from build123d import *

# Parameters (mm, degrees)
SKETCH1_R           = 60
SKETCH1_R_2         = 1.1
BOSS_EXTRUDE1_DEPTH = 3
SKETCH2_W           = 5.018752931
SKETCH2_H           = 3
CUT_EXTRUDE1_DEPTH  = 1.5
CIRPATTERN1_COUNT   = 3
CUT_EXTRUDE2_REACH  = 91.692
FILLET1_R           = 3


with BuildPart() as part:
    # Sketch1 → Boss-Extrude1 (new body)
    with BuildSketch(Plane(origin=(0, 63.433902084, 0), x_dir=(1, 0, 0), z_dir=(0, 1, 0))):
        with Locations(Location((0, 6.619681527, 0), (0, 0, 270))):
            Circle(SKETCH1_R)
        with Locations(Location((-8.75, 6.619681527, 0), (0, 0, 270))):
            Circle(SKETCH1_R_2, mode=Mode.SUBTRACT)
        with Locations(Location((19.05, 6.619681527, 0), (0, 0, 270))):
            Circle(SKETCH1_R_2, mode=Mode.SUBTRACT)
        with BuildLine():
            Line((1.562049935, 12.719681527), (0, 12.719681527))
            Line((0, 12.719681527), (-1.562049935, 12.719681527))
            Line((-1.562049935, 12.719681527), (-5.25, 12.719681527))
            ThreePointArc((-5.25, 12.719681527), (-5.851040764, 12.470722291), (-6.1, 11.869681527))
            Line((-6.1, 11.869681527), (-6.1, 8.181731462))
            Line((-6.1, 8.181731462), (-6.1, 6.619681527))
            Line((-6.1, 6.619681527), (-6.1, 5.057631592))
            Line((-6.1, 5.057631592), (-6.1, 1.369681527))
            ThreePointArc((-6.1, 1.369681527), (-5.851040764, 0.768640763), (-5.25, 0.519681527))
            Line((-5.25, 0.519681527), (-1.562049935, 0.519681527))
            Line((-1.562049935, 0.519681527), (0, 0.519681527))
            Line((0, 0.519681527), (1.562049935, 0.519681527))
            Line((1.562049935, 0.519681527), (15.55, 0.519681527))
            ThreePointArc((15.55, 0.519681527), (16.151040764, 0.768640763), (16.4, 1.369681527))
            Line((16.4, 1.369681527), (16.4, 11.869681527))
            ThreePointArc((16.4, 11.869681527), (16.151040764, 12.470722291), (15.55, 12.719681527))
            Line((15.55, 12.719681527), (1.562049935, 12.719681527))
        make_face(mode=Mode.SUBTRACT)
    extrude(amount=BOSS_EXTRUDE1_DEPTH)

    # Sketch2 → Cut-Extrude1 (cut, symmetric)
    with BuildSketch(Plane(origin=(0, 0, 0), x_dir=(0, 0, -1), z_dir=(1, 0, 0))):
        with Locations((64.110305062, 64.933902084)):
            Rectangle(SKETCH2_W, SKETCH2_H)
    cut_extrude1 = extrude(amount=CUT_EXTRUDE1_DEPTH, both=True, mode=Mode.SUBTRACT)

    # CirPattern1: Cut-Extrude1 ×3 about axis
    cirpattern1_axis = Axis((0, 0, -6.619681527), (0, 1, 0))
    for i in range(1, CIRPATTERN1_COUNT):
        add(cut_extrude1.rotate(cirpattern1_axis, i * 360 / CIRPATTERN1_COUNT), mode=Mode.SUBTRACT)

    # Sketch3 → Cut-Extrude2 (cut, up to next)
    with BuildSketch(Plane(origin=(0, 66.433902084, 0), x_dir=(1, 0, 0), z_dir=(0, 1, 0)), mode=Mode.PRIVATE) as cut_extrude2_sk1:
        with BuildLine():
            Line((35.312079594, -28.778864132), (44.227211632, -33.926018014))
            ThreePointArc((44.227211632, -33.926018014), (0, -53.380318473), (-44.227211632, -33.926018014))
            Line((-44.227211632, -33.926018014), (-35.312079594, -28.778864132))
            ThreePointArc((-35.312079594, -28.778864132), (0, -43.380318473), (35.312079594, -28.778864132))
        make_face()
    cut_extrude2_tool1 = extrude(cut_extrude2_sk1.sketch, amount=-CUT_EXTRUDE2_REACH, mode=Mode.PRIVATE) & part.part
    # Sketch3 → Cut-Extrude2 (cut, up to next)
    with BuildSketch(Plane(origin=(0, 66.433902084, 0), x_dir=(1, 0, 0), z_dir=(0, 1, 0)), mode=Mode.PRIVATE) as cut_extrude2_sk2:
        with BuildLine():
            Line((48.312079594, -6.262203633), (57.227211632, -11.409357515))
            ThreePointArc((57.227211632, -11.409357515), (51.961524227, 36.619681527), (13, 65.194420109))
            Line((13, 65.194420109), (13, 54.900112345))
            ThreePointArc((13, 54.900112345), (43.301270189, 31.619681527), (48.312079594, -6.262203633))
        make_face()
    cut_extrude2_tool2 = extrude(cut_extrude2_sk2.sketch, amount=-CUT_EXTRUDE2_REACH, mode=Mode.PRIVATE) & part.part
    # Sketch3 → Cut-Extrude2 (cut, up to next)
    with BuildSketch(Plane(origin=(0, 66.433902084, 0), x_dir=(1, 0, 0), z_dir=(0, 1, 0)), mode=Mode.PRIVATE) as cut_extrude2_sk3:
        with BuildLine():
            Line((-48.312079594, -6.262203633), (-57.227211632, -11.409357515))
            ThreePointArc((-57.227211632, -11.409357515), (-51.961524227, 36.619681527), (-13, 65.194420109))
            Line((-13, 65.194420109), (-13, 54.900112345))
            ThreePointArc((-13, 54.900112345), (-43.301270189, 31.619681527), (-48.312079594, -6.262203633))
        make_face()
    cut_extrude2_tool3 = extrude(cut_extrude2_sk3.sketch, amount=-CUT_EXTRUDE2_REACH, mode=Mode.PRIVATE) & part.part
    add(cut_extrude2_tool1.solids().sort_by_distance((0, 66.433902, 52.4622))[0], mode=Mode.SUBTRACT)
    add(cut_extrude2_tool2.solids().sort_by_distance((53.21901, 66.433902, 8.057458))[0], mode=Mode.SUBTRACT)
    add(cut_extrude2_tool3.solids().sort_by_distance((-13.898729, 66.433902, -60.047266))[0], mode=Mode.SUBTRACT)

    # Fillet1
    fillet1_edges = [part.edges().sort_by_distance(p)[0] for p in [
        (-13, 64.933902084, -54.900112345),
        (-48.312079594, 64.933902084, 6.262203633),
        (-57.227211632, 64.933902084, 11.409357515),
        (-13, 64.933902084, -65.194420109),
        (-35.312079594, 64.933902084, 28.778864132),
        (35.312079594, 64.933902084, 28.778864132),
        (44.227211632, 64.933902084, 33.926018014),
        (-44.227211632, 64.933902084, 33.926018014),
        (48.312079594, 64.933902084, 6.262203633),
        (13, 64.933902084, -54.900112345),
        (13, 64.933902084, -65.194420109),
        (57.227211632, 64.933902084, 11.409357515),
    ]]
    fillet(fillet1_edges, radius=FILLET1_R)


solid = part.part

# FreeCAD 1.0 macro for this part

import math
import FreeCAD as App
import Part
import Sketcher
from FreeCAD import Vector
Q = App.Units.Quantity


def edges_at(feature, points):
    """Names of the edges that pass closest to the given points."""
    edges = feature.Shape.Edges
    near = lambda p: min(range(len(edges)), key=lambda i: edges[i].distToShape(Part.Vertex(*p))[0])
    return sorted({f"Edge{near(p) + 1}" for p in points})


def add_polygon(sketch, points):
    """Adds a closed chain of lines whose ends are joined by coincident constraints."""
    first, n = sketch.GeometryCount, len(points)
    for a, b in zip(points, points[1:] + points[:1]):
        sketch.addGeometry(Part.LineSegment(App.Vector(*a, 0), App.Vector(*b, 0)), False)
    for i in range(n):
        sketch.addConstraint(Sketcher.Constraint("Coincident", first + i, 2, first + (i + 1) % n, 1))

doc = App.newDocument("Part")
body = doc.addObject("PartDesign::Body", "Body")

sketch1 = body.newObject("Sketcher::SketchObject", "Sketch")
sketch1.AttachmentSupport = (doc.getObject("XZ_Plane"), [""])
sketch1.MapMode = "FlatFace"
sketch1.AttachmentOffset = App.Placement(Vector(0, 0, -63.433902), App.Rotation())
sketch1.addGeometry([
    Part.Circle(Vector(0, -6.6, 0), Vector(0, 0, 1), 60),
    Part.ArcOfCircle(Part.Circle(Vector(-5.2, -11.9, 0), Vector(0, 0, 1), 0.8), math.radians(180), math.radians(270)),
    Part.LineSegment(Vector(-5.2, -12.7, 0), Vector(15.6, -12.7, 0)),
    Part.ArcOfCircle(Part.Circle(Vector(15.6, -11.9, 0), Vector(0, 0, 1), 0.8), math.radians(-90), math.radians(0)),
    Part.LineSegment(Vector(16.4, -11.9, 0), Vector(16.4, -1.4, 0)),
    Part.ArcOfCircle(Part.Circle(Vector(15.6, -1.4, 0), Vector(0, 0, 1), 0.8), math.radians(0), math.radians(90)),
    Part.LineSegment(Vector(15.6, -0.5, 0), Vector(-5.2, -0.5, 0)),
    Part.ArcOfCircle(Part.Circle(Vector(-5.2, -1.4, 0), Vector(0, 0, 1), 0.8), math.radians(90), math.radians(180)),
    Part.LineSegment(Vector(-6.1, -1.4, 0), Vector(-6.1, -11.9, 0)),
    Part.Circle(Vector(-8.8, -6.6, 0), Vector(0, 0, 1), 1.1),
    Part.Circle(Vector(19.1, -6.6, 0), Vector(0, 0, 1), 1.1),
], False)
sketch1.addConstraint([
    Sketcher.Constraint("Tangent", 1, 2, 2, 1),
    Sketcher.Constraint("Tangent", 2, 2, 3, 1),
    Sketcher.Constraint("Tangent", 3, 2, 4, 1),
    Sketcher.Constraint("Tangent", 4, 2, 5, 1),
    Sketcher.Constraint("Tangent", 5, 2, 6, 1),
    Sketcher.Constraint("Tangent", 6, 2, 7, 1),
    Sketcher.Constraint("Tangent", 7, 2, 8, 1),
    Sketcher.Constraint("Tangent", 8, 2, 1, 1),
    Sketcher.Constraint("Horizontal", 2),
    Sketcher.Constraint("Vertical", 4),
    Sketcher.Constraint("Horizontal", 6),
    Sketcher.Constraint("Vertical", 8),
    Sketcher.Constraint("Equal", 1, 3),
    Sketcher.Constraint("Equal", 3, 5),
    Sketcher.Constraint("Equal", 5, 7),
    Sketcher.Constraint("Equal", 9, 10),
    Sketcher.Constraint("PointOnObject", 0, 3, -2),
    Sketcher.Constraint("Horizontal", 0, 3, 9, 3),
    Sketcher.Constraint("Horizontal", 9, 3, 10, 3),
    Sketcher.Constraint("Diameter", 0, Q("120 mm")),
    Sketcher.Constraint("Diameter", 9, Q("2.2 mm")),
    Sketcher.Constraint("Radius", 1, Q("0.85 mm")),
    Sketcher.Constraint("DistanceX", 2, 1, 2, 2, Q("20.8 mm")),
    Sketcher.Constraint("DistanceY", 4, 1, 4, 2, Q("10.5 mm")),
    Sketcher.Constraint("DistanceX", -1, 1, 3, 2, Q("16.4 mm")),
    Sketcher.Constraint("DistanceX", 9, 3, 1, 3, Q("3.5 mm")),
    Sketcher.Constraint("DistanceX", 3, 3, 10, 3, Q("3.5 mm")),
    Sketcher.Constraint("DistanceY", 1, 2, 9, 3, Q("6.1 mm")),
    Sketcher.Constraint("DistanceY", 0, 3, -1, 1, Q("6.619682 mm")),
])
pad1 = body.newObject("PartDesign::Pad", "Pad")
pad1.Profile = sketch1
pad1.Length = 3
pad1.Reversed = True

sketch2 = body.newObject("Sketcher::SketchObject", "Sketch001")
sketch2.AttachmentSupport = (doc.getObject("YZ_Plane"), [""])
sketch2.MapMode = "FlatFace"
add_polygon(sketch2, [(66.4, -61.6), (63.4, -61.6), (63.4, -66.6), (66.4, -66.6)])
sketch2.addConstraint([
    Sketcher.Constraint("Horizontal", 0),
    Sketcher.Constraint("Vertical", 1),
    Sketcher.Constraint("Horizontal", 2),
    Sketcher.Constraint("Vertical", 3),
    Sketcher.Constraint("DistanceX", 0, 2, 0, 1, Q("3 mm")),
    Sketcher.Constraint("DistanceY", 1, 2, 1, 1, Q("5.018753 mm")),
    Sketcher.Constraint("DistanceY", 0, 2, -1, 1, Q("61.600929 mm")),
    Sketcher.Constraint("DistanceX", -1, 1, 0, 2, Q("63.433902 mm")),
])
pocket1 = body.newObject("PartDesign::Pocket", "Pocket")
pocket1.Profile = sketch2
pocket1.Length = 3
pocket1.Midplane = True
doc.recompute()

datumline = body.newObject("PartDesign::Line", "DatumLine")
datumline.Placement = App.Placement(Vector(0, 0, -6.619682), App.Rotation(Vector(0, 0, 1), Vector(0, 1, 0)))
polarpattern = body.newObject("PartDesign::PolarPattern", "PolarPattern")
polarpattern.Originals = [pocket1]
polarpattern.Axis = (datumline, [""])
polarpattern.Angle = 360
polarpattern.Occurrences = 3
body.Tip = polarpattern

sketch3 = body.newObject("Sketcher::SketchObject", "Sketch002")
sketch3.AttachmentSupport = (doc.getObject("XZ_Plane"), [""])
sketch3.MapMode = "FlatFace"
sketch3.AttachmentOffset = App.Placement(Vector(0, 0, -66.433902), App.Rotation())
sketch3.addGeometry([
    Part.LineSegment(Vector(44, 34, 0), Vector(35, 29, 0)),
    Part.ArcOfCircle(Part.Circle(Vector(0, -7, 0), Vector(0, 0, 1), 50), math.radians(45), math.radians(135)),
    Part.LineSegment(Vector(-35, 29, 0), Vector(-44, 34, 0)),
    Part.ArcOfCircle(Part.Circle(Vector(0, -7, 0), Vector(0, 0, 1), 60), math.radians(43), math.radians(137)),
], False)
sketch3.addConstraint([
    Sketcher.Constraint("Coincident", 0, 2, 1, 1),
    Sketcher.Constraint("Coincident", 1, 2, 2, 1),
    Sketcher.Constraint("Coincident", 2, 2, 3, 2),
    Sketcher.Constraint("Coincident", 3, 1, 0, 1),
    Sketcher.Constraint("Coincident", 3, 3, 1, 3),
    Sketcher.Constraint("Symmetric", 0, 2, 1, 2, -2),
    Sketcher.Constraint("Horizontal", 2, 2, 3, 1),
    Sketcher.Constraint("Radius", 1, Q("50 mm")),
    Sketcher.Constraint("Radius", 3, Q("60 mm")),
    Sketcher.Constraint("Angle", 0, Q("-150 deg")),
    Sketcher.Constraint("DistanceY", 3, 3, 2, 2, Q("40.5457 mm")),
    Sketcher.Constraint("DistanceY", 1, 3, -1, 1, Q("6.619682 mm")),
])
pocket2 = body.newObject("PartDesign::Pocket", "Pocket001")
pocket2.Profile = sketch3
pocket2.Type = "UpToFirst"
pocket2.Reversed = True

sketch4 = body.newObject("Sketcher::SketchObject", "Sketch003")
sketch4.AttachmentSupport = (doc.getObject("XZ_Plane"), [""])
sketch4.MapMode = "FlatFace"
sketch4.AttachmentOffset = App.Placement(Vector(0, 0, -66.433902), App.Rotation())
sketch4.addGeometry([
    Part.LineSegment(Vector(48, 6, 0), Vector(57, 11, 0)),
    Part.ArcOfCircle(Part.Circle(Vector(0, -7, 0), Vector(0, 0, 1), 60), math.radians(-77), math.radians(17)),
    Part.LineSegment(Vector(13, -65, 0), Vector(13, -55, 0)),
    Part.ArcOfCircle(Part.Circle(Vector(0, -7, 0), Vector(0, 0, 1), 50), math.radians(-75), math.radians(15)),
], False)
sketch4.addConstraint([
    Sketcher.Constraint("Coincident", 0, 2, 1, 2),
    Sketcher.Constraint("Coincident", 1, 1, 2, 1),
    Sketcher.Constraint("Coincident", 2, 2, 3, 1),
    Sketcher.Constraint("Coincident", 3, 2, 0, 1),
    Sketcher.Constraint("Vertical", 2),
    Sketcher.Constraint("Coincident", 3, 3, 1, 3),
    Sketcher.Constraint("PointOnObject", 1, 3, -2),
    Sketcher.Constraint("Radius", 1, Q("60 mm")),
    Sketcher.Constraint("Radius", 3, Q("50 mm")),
    Sketcher.Constraint("Angle", 0, Q("30 deg")),
    Sketcher.Constraint("DistanceX", -1, 1, 1, 1, Q("13 mm")),
    Sketcher.Constraint("DistanceY", 1, 3, -1, 1, Q("6.619682 mm")),
    Sketcher.Constraint("DistanceX", -1, 1, 0, 2, Q("57.227212 mm")),
])
pocket3 = body.newObject("PartDesign::Pocket", "Pocket002")
pocket3.Profile = sketch4
pocket3.Type = "UpToFirst"
pocket3.Reversed = True

sketch5 = body.newObject("Sketcher::SketchObject", "Sketch004")
sketch5.AttachmentSupport = (doc.getObject("XZ_Plane"), [""])
sketch5.MapMode = "FlatFace"
sketch5.AttachmentOffset = App.Placement(Vector(0, 0, -66.433902), App.Rotation())
sketch5.addGeometry([
    Part.LineSegment(Vector(-57, 11, 0), Vector(-48, 6, 0)),
    Part.ArcOfCircle(Part.Circle(Vector(0, -7, 0), Vector(0, 0, 1), 50), math.radians(165), math.radians(255)),
    Part.LineSegment(Vector(-13, -55, 0), Vector(-13, -65, 0)),
    Part.ArcOfCircle(Part.Circle(Vector(0, -7, 0), Vector(0, 0, 1), 60), math.radians(163), math.radians(257)),
], False)
sketch5.addConstraint([
    Sketcher.Constraint("Coincident", 0, 2, 1, 1),
    Sketcher.Constraint("Coincident", 1, 2, 2, 1),
    Sketcher.Constraint("Coincident", 2, 2, 3, 2),
    Sketcher.Constraint("Coincident", 3, 1, 0, 1),
    Sketcher.Constraint("Vertical", 2),
    Sketcher.Constraint("Coincident", 3, 3, 1, 3),
    Sketcher.Constraint("PointOnObject", 1, 3, -2),
    Sketcher.Constraint("Radius", 1, Q("50 mm")),
    Sketcher.Constraint("Radius", 3, Q("60 mm")),
    Sketcher.Constraint("Angle", 0, Q("-30 deg")),
    Sketcher.Constraint("DistanceX", 1, 2, -1, 1, Q("13 mm")),
    Sketcher.Constraint("DistanceY", 1, 3, -1, 1, Q("6.619682 mm")),
    Sketcher.Constraint("DistanceX", 0, 2, -1, 1, Q("48.31208 mm")),
])
pocket4 = body.newObject("PartDesign::Pocket", "Pocket003")
pocket4.Profile = sketch5
pocket4.Type = "UpToFirst"
pocket4.Reversed = True
doc.recompute()

fillet = body.newObject("PartDesign::Fillet", "Fillet")
fillet.Base = (pocket4, edges_at(pocket4, [
    (-13, 64.934, -54.9),
    (-48.312, 64.934, 6.262),
    (-57.227, 64.934, 11.409),
    (-13, 64.934, -65.194),
    (-35.312, 64.934, 28.779),
    (35.312, 64.934, 28.779),
    (44.227, 64.934, 33.926),
    (-44.227, 64.934, 33.926),
    (48.312, 64.934, 6.262),
    (13, 64.934, -54.9),
    (13, 64.934, -65.194),
    (57.227, 64.934, 11.409),
]))
fillet.Radius = 3

doc.recompute()
